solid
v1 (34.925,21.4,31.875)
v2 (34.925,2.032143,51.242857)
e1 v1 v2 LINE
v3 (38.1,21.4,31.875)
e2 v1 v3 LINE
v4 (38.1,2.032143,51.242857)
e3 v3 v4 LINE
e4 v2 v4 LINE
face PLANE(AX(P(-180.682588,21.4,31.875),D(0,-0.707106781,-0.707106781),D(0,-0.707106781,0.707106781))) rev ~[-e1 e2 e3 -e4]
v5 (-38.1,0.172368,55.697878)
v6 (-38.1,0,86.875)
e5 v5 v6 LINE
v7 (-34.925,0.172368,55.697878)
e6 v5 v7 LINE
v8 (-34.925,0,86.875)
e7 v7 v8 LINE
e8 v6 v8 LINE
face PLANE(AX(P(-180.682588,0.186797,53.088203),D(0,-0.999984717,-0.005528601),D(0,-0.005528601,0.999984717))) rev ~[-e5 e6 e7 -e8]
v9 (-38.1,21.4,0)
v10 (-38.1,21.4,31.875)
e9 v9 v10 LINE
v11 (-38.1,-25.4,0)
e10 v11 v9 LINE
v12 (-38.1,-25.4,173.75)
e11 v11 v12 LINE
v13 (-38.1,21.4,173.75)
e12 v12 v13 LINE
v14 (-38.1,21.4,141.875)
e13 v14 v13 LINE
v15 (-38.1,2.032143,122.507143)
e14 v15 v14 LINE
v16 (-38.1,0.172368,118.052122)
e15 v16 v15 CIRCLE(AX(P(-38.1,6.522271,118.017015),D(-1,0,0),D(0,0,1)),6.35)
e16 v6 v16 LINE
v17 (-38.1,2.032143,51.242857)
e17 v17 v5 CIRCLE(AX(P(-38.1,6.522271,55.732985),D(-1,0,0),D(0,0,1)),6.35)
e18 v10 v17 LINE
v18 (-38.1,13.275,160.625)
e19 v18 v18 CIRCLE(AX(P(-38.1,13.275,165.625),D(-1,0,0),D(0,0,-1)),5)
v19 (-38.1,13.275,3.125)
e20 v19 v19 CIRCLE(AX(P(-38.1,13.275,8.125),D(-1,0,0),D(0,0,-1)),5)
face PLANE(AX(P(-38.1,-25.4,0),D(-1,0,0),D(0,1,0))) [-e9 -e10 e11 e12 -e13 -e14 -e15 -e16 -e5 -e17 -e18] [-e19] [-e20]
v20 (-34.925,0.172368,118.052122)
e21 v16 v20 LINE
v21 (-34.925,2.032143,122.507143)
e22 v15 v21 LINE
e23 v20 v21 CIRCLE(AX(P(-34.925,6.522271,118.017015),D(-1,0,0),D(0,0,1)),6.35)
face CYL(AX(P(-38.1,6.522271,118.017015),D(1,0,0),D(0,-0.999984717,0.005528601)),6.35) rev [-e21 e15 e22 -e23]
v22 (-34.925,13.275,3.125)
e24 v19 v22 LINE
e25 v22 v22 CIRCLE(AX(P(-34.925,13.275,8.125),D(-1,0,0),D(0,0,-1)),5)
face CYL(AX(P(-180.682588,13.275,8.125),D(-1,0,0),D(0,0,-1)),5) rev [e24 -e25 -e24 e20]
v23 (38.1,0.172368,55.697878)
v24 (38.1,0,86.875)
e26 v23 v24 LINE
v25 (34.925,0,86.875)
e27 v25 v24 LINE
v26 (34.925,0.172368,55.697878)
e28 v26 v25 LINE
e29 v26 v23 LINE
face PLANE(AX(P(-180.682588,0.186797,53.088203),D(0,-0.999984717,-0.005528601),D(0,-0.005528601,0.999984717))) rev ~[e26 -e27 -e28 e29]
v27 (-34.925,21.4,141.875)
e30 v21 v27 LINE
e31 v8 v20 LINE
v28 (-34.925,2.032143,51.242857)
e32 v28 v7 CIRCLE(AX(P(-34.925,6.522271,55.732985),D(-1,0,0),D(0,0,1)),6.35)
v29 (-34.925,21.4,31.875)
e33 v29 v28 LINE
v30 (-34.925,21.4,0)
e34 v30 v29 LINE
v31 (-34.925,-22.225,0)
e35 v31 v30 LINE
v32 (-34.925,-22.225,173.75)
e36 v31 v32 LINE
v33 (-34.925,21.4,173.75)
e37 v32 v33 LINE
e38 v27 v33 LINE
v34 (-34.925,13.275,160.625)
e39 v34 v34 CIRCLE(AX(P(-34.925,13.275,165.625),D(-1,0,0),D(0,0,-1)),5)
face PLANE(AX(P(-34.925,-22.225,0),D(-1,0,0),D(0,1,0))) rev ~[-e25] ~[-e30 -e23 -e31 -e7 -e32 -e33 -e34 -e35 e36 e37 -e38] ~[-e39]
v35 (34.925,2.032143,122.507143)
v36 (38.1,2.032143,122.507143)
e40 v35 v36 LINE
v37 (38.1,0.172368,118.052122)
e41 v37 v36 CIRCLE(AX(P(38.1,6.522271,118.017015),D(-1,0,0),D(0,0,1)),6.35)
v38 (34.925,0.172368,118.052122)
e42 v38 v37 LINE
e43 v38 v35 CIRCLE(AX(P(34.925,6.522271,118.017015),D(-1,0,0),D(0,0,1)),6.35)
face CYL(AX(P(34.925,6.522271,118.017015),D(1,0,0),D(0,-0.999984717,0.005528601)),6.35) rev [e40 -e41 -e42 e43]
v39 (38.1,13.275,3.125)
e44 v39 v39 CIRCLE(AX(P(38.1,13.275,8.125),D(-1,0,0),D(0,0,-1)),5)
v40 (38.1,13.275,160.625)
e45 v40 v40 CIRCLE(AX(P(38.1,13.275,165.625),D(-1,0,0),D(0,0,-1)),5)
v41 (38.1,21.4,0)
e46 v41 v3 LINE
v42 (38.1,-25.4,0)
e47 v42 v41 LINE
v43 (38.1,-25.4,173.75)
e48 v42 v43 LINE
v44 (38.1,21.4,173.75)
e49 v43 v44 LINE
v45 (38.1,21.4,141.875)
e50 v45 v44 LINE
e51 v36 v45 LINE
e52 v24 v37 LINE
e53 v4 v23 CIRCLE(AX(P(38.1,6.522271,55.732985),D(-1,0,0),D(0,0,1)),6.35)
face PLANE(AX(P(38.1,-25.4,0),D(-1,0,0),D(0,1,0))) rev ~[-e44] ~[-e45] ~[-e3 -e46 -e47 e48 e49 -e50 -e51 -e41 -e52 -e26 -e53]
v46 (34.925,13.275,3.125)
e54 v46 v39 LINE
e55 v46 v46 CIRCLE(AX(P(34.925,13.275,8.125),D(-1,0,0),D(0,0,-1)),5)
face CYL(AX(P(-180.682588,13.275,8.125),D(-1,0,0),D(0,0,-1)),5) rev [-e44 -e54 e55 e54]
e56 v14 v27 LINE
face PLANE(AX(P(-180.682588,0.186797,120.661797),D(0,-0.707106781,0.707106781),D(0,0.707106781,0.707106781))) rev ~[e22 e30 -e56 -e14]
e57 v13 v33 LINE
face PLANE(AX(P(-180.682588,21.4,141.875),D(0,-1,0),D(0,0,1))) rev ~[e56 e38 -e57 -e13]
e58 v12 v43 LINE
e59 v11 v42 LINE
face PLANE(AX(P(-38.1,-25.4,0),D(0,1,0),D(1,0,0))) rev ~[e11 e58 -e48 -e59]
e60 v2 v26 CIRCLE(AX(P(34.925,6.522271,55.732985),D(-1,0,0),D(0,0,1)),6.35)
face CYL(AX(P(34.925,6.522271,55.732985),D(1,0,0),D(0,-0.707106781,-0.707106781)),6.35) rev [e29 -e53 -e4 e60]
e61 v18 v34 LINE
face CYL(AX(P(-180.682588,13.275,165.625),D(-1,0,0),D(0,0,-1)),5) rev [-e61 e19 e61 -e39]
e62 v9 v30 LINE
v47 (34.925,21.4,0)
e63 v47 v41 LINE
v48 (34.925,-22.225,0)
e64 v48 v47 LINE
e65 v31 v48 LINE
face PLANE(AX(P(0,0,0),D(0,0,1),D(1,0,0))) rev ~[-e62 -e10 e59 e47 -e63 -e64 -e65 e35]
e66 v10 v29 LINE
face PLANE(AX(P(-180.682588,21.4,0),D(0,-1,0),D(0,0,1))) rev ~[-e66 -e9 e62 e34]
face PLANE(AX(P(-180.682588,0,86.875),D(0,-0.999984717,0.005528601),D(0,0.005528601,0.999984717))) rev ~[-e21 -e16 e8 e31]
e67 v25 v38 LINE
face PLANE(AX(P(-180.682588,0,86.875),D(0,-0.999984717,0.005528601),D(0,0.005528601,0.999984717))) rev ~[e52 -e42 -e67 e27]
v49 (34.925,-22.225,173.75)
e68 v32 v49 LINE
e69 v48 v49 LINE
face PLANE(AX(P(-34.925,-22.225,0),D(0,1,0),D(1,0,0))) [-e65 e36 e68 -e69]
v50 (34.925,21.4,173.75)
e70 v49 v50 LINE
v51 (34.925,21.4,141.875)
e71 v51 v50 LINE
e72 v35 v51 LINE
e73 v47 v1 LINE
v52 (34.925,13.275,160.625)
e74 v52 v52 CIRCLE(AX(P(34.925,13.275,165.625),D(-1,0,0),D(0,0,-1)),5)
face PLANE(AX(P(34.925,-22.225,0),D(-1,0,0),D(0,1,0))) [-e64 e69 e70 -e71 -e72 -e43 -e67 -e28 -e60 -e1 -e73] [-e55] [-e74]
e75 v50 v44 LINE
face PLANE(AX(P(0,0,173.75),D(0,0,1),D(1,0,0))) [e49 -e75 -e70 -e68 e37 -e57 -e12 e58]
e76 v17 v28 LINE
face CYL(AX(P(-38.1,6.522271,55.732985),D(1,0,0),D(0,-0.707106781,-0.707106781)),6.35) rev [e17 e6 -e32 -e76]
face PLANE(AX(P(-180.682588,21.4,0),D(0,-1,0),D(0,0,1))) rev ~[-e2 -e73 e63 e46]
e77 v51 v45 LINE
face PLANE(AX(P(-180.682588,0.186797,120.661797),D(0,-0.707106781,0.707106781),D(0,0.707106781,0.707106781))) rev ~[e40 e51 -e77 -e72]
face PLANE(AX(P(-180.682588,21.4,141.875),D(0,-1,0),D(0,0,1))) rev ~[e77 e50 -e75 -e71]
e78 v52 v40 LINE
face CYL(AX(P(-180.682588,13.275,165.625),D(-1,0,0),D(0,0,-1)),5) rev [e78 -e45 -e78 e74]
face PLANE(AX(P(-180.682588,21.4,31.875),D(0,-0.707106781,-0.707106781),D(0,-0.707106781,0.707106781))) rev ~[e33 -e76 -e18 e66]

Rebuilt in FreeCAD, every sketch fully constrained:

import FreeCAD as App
import Part
import Sketcher
Q = App.Units.Quantity


def edges_at(feature, points):
    """Names of the edges that pass closest to the given points."""
    edges = feature.Shape.Edges
    near = lambda p: min(range(len(edges)), key=lambda i: edges[i].distToShape(Part.Vertex(*p))[0])
    return sorted({f"Edge{near(p) + 1}" for p in points})

doc = App.newDocument("Part")
body = doc.addObject("PartDesign::Body", "Body")

# Sketch on XY plane
sketch1 = body.newObject("Sketcher::SketchObject", "Sketch")
sketch1.AttachmentSupport = (doc.getObject("XY_Plane"), [""])
sketch1.MapMode = "FlatFace"
sketch1.addGeometry(Part.LineSegment(App.Vector(-38, 25, 0), App.Vector(-38, -25, 0)), False)
sketch1.addGeometry(Part.LineSegment(App.Vector(-38, -25, 0), App.Vector(38, -25, 0)), False)
sketch1.addGeometry(Part.LineSegment(App.Vector(38, -25, 0), App.Vector(38, 25, 0)), False)
sketch1.addGeometry(Part.LineSegment(App.Vector(38, 25, 0), App.Vector(-38, 25, 0)), False)
sketch1.addGeometry(Part.LineSegment(App.Vector(35, -22, 0), App.Vector(-35, -22, 0)), False)
sketch1.addGeometry(Part.LineSegment(App.Vector(-35, -22, 0), App.Vector(-35, 22, 0)), False)
sketch1.addGeometry(Part.LineSegment(App.Vector(-35, 22, 0), App.Vector(35, 22, 0)), False)
sketch1.addGeometry(Part.LineSegment(App.Vector(35, 22, 0), App.Vector(35, -22, 0)), False)
sketch1.addConstraint(Sketcher.Constraint("Coincident", 0, 2, 1, 1))
sketch1.addConstraint(Sketcher.Constraint("Coincident", 1, 2, 2, 1))
sketch1.addConstraint(Sketcher.Constraint("Coincident", 2, 2, 3, 1))
sketch1.addConstraint(Sketcher.Constraint("Coincident", 3, 2, 0, 1))
sketch1.addConstraint(Sketcher.Constraint("Coincident", 4, 2, 5, 1))
sketch1.addConstraint(Sketcher.Constraint("Coincident", 5, 2, 6, 1))
sketch1.addConstraint(Sketcher.Constraint("Coincident", 6, 2, 7, 1))
sketch1.addConstraint(Sketcher.Constraint("Coincident", 7, 2, 4, 1))
sketch1.addConstraint(Sketcher.Constraint("Vertical", 0))
sketch1.addConstraint(Sketcher.Constraint("Horizontal", 1))
sketch1.addConstraint(Sketcher.Constraint("Vertical", 2))
sketch1.addConstraint(Sketcher.Constraint("Horizontal", 3))
sketch1.addConstraint(Sketcher.Constraint("Horizontal", 4))
sketch1.addConstraint(Sketcher.Constraint("Vertical", 5))
sketch1.addConstraint(Sketcher.Constraint("Horizontal", 6))
sketch1.addConstraint(Sketcher.Constraint("Vertical", 7))
sketch1.addConstraint(Sketcher.Constraint("Symmetric", 0, 2, 2, 2, -1, 1))
sketch1.addConstraint(Sketcher.Constraint("Symmetric", 4, 2, 6, 2, -1, 1))
sketch1.addConstraint(Sketcher.Constraint("DistanceX", 1, 1, 1, 2, Q("3 in")))
sketch1.addConstraint(Sketcher.Constraint("DistanceY", 0, 2, 0, 1, Q("2 in")))
sketch1.addConstraint(Sketcher.Constraint("DistanceX", 4, 2, 4, 1, Q("2.75 in")))
sketch1.addConstraint(Sketcher.Constraint("DistanceY", 5, 1, 5, 2, Q("1.75 in")))
pad1 = body.newObject("PartDesign::Pad", "Pad")
pad1.Profile = sketch1
pad1.Length = 173.75

# Sketch on YZ plane
sketch2 = body.newObject("Sketcher::SketchObject", "Sketch001")
sketch2.AttachmentSupport = (doc.getObject("YZ_Plane"), [""])
sketch2.MapMode = "FlatFace"
sketch2.addGeometry(Part.Circle(App.Vector(13.3, 165.6, 0), App.Vector(0, 0, 1), 5), False)
sketch2.addGeometry(Part.Circle(App.Vector(13.3, 8.1, 0), App.Vector(0, 0, 1), 5), False)
sketch2.addGeometry(Part.LineSegment(App.Vector(25.4, 0, 0), App.Vector(25.4, 173.8, 0)), False)
sketch2.addGeometry(Part.LineSegment(App.Vector(25.4, 173.8, 0), App.Vector(21.4, 173.8, 0)), False)
sketch2.addGeometry(Part.LineSegment(App.Vector(21.4, 173.8, 0), App.Vector(21.4, 141.9, 0)), False)
sketch2.addGeometry(Part.LineSegment(App.Vector(21.4, 141.9, 0), App.Vector(0.2, 120.7, 0)), False)
sketch2.addGeometry(Part.LineSegment(App.Vector(0.2, 120.7, 0), App.Vector(0, 86.9, 0)), False)
sketch2.addGeometry(Part.LineSegment(App.Vector(0, 86.9, 0), App.Vector(0.2, 53.1, 0)), False)
sketch2.addGeometry(Part.LineSegment(App.Vector(0.2, 53.1, 0), App.Vector(21.4, 31.9, 0)), False)
sketch2.addGeometry(Part.LineSegment(App.Vector(21.4, 31.9, 0), App.Vector(21.4, 0, 0)), False)
sketch2.addGeometry(Part.LineSegment(App.Vector(21.4, 0, 0), App.Vector(25.4, 0, 0)), False)
sketch2.addConstraint(Sketcher.Constraint("Coincident", 2, 2, 3, 1))
sketch2.addConstraint(Sketcher.Constraint("Coincident", 3, 2, 4, 1))
sketch2.addConstraint(Sketcher.Constraint("Coincident", 4, 2, 5, 1))
sketch2.addConstraint(Sketcher.Constraint("Coincident", 5, 2, 6, 1))
sketch2.addConstraint(Sketcher.Constraint("Coincident", 6, 2, 7, 1))
sketch2.addConstraint(Sketcher.Constraint("Coincident", 7, 2, 8, 1))
sketch2.addConstraint(Sketcher.Constraint("Coincident", 8, 2, 9, 1))
sketch2.addConstraint(Sketcher.Constraint("Coincident", 9, 2, 10, 1))
sketch2.addConstraint(Sketcher.Constraint("Coincident", 10, 2, 2, 1))
sketch2.addConstraint(Sketcher.Constraint("Vertical", 2))
sketch2.addConstraint(Sketcher.Constraint("Horizontal", 3))
sketch2.addConstraint(Sketcher.Constraint("Vertical", 4))
sketch2.addConstraint(Sketcher.Constraint("Vertical", 9))
sketch2.addConstraint(Sketcher.Constraint("Horizontal", 10))
sketch2.addConstraint(Sketcher.Constraint("Equal", 0, 1))
sketch2.addConstraint(Sketcher.Constraint("PointOnObject", 6, 2, -2))
sketch2.addConstraint(Sketcher.Constraint("PointOnObject", 9, 2, -1))
sketch2.addConstraint(Sketcher.Constraint("Perpendicular", 5, 8))
sketch2.addConstraint(Sketcher.Constraint("Vertical", 0, 3, 1, 3))
sketch2.addConstraint(Sketcher.Constraint("Vertical", 5, 2, 7, 2))
sketch2.addConstraint(Sketcher.Constraint("Vertical", 4, 2, 8, 2))
sketch2.addConstraint(Sketcher.Constraint("Equal", 4, 9))
sketch2.addConstraint(Sketcher.Constraint("Equal", 6, 7))
sketch2.addConstraint(Sketcher.Constraint("Equal", 5, 8))
sketch2.addConstraint(Sketcher.Constraint("DistanceX", -1, 1, 2, 2, Q("1 in")))
sketch2.addConstraint(Sketcher.Constraint("Diameter", 0, Q("10 mm")))
sketch2.addConstraint(Sketcher.Constraint("DistanceX", 3, 2, 3, 1, Q("4 mm")))
sketch2.addConstraint(Sketcher.Constraint("DistanceY", 2, 1, 2, 2, Q("173.75 mm")))
sketch2.addConstraint(Sketcher.Constraint("DistanceY", 4, 2, 4, 1, Q("31.875 mm")))
sketch2.addConstraint(Sketcher.Constraint("Distance", 5, Q("30 mm")))
sketch2.addConstraint(Sketcher.Constraint("DistanceX", -1, 1, 0, 3, Q("13.275 mm")))
sketch2.addConstraint(Sketcher.Constraint("DistanceY", -1, 1, 0, 3, Q("165.625 mm")))
sketch2.addConstraint(Sketcher.Constraint("DistanceY", -1, 1, 1, 3, Q("8.125 mm")))
pocket1 = body.newObject("PartDesign::Pocket", "Pocket")
pocket1.Profile = sketch2
pocket1.Type = "ThroughAll"
pocket1.Midplane = True
doc.recompute()

fillet = body.newObject("PartDesign::Fillet", "Fillet")
fillet.Base = (pocket1, edges_at(pocket1, [
    (-36.513, 0.187, 53.088),
    (-36.513, 0.187, 120.662),
    (36.513, 0.187, 53.088),
    (36.513, 0.187, 120.662),
]))
fillet.Radius = Q("0.25 in")

doc.recompute()
